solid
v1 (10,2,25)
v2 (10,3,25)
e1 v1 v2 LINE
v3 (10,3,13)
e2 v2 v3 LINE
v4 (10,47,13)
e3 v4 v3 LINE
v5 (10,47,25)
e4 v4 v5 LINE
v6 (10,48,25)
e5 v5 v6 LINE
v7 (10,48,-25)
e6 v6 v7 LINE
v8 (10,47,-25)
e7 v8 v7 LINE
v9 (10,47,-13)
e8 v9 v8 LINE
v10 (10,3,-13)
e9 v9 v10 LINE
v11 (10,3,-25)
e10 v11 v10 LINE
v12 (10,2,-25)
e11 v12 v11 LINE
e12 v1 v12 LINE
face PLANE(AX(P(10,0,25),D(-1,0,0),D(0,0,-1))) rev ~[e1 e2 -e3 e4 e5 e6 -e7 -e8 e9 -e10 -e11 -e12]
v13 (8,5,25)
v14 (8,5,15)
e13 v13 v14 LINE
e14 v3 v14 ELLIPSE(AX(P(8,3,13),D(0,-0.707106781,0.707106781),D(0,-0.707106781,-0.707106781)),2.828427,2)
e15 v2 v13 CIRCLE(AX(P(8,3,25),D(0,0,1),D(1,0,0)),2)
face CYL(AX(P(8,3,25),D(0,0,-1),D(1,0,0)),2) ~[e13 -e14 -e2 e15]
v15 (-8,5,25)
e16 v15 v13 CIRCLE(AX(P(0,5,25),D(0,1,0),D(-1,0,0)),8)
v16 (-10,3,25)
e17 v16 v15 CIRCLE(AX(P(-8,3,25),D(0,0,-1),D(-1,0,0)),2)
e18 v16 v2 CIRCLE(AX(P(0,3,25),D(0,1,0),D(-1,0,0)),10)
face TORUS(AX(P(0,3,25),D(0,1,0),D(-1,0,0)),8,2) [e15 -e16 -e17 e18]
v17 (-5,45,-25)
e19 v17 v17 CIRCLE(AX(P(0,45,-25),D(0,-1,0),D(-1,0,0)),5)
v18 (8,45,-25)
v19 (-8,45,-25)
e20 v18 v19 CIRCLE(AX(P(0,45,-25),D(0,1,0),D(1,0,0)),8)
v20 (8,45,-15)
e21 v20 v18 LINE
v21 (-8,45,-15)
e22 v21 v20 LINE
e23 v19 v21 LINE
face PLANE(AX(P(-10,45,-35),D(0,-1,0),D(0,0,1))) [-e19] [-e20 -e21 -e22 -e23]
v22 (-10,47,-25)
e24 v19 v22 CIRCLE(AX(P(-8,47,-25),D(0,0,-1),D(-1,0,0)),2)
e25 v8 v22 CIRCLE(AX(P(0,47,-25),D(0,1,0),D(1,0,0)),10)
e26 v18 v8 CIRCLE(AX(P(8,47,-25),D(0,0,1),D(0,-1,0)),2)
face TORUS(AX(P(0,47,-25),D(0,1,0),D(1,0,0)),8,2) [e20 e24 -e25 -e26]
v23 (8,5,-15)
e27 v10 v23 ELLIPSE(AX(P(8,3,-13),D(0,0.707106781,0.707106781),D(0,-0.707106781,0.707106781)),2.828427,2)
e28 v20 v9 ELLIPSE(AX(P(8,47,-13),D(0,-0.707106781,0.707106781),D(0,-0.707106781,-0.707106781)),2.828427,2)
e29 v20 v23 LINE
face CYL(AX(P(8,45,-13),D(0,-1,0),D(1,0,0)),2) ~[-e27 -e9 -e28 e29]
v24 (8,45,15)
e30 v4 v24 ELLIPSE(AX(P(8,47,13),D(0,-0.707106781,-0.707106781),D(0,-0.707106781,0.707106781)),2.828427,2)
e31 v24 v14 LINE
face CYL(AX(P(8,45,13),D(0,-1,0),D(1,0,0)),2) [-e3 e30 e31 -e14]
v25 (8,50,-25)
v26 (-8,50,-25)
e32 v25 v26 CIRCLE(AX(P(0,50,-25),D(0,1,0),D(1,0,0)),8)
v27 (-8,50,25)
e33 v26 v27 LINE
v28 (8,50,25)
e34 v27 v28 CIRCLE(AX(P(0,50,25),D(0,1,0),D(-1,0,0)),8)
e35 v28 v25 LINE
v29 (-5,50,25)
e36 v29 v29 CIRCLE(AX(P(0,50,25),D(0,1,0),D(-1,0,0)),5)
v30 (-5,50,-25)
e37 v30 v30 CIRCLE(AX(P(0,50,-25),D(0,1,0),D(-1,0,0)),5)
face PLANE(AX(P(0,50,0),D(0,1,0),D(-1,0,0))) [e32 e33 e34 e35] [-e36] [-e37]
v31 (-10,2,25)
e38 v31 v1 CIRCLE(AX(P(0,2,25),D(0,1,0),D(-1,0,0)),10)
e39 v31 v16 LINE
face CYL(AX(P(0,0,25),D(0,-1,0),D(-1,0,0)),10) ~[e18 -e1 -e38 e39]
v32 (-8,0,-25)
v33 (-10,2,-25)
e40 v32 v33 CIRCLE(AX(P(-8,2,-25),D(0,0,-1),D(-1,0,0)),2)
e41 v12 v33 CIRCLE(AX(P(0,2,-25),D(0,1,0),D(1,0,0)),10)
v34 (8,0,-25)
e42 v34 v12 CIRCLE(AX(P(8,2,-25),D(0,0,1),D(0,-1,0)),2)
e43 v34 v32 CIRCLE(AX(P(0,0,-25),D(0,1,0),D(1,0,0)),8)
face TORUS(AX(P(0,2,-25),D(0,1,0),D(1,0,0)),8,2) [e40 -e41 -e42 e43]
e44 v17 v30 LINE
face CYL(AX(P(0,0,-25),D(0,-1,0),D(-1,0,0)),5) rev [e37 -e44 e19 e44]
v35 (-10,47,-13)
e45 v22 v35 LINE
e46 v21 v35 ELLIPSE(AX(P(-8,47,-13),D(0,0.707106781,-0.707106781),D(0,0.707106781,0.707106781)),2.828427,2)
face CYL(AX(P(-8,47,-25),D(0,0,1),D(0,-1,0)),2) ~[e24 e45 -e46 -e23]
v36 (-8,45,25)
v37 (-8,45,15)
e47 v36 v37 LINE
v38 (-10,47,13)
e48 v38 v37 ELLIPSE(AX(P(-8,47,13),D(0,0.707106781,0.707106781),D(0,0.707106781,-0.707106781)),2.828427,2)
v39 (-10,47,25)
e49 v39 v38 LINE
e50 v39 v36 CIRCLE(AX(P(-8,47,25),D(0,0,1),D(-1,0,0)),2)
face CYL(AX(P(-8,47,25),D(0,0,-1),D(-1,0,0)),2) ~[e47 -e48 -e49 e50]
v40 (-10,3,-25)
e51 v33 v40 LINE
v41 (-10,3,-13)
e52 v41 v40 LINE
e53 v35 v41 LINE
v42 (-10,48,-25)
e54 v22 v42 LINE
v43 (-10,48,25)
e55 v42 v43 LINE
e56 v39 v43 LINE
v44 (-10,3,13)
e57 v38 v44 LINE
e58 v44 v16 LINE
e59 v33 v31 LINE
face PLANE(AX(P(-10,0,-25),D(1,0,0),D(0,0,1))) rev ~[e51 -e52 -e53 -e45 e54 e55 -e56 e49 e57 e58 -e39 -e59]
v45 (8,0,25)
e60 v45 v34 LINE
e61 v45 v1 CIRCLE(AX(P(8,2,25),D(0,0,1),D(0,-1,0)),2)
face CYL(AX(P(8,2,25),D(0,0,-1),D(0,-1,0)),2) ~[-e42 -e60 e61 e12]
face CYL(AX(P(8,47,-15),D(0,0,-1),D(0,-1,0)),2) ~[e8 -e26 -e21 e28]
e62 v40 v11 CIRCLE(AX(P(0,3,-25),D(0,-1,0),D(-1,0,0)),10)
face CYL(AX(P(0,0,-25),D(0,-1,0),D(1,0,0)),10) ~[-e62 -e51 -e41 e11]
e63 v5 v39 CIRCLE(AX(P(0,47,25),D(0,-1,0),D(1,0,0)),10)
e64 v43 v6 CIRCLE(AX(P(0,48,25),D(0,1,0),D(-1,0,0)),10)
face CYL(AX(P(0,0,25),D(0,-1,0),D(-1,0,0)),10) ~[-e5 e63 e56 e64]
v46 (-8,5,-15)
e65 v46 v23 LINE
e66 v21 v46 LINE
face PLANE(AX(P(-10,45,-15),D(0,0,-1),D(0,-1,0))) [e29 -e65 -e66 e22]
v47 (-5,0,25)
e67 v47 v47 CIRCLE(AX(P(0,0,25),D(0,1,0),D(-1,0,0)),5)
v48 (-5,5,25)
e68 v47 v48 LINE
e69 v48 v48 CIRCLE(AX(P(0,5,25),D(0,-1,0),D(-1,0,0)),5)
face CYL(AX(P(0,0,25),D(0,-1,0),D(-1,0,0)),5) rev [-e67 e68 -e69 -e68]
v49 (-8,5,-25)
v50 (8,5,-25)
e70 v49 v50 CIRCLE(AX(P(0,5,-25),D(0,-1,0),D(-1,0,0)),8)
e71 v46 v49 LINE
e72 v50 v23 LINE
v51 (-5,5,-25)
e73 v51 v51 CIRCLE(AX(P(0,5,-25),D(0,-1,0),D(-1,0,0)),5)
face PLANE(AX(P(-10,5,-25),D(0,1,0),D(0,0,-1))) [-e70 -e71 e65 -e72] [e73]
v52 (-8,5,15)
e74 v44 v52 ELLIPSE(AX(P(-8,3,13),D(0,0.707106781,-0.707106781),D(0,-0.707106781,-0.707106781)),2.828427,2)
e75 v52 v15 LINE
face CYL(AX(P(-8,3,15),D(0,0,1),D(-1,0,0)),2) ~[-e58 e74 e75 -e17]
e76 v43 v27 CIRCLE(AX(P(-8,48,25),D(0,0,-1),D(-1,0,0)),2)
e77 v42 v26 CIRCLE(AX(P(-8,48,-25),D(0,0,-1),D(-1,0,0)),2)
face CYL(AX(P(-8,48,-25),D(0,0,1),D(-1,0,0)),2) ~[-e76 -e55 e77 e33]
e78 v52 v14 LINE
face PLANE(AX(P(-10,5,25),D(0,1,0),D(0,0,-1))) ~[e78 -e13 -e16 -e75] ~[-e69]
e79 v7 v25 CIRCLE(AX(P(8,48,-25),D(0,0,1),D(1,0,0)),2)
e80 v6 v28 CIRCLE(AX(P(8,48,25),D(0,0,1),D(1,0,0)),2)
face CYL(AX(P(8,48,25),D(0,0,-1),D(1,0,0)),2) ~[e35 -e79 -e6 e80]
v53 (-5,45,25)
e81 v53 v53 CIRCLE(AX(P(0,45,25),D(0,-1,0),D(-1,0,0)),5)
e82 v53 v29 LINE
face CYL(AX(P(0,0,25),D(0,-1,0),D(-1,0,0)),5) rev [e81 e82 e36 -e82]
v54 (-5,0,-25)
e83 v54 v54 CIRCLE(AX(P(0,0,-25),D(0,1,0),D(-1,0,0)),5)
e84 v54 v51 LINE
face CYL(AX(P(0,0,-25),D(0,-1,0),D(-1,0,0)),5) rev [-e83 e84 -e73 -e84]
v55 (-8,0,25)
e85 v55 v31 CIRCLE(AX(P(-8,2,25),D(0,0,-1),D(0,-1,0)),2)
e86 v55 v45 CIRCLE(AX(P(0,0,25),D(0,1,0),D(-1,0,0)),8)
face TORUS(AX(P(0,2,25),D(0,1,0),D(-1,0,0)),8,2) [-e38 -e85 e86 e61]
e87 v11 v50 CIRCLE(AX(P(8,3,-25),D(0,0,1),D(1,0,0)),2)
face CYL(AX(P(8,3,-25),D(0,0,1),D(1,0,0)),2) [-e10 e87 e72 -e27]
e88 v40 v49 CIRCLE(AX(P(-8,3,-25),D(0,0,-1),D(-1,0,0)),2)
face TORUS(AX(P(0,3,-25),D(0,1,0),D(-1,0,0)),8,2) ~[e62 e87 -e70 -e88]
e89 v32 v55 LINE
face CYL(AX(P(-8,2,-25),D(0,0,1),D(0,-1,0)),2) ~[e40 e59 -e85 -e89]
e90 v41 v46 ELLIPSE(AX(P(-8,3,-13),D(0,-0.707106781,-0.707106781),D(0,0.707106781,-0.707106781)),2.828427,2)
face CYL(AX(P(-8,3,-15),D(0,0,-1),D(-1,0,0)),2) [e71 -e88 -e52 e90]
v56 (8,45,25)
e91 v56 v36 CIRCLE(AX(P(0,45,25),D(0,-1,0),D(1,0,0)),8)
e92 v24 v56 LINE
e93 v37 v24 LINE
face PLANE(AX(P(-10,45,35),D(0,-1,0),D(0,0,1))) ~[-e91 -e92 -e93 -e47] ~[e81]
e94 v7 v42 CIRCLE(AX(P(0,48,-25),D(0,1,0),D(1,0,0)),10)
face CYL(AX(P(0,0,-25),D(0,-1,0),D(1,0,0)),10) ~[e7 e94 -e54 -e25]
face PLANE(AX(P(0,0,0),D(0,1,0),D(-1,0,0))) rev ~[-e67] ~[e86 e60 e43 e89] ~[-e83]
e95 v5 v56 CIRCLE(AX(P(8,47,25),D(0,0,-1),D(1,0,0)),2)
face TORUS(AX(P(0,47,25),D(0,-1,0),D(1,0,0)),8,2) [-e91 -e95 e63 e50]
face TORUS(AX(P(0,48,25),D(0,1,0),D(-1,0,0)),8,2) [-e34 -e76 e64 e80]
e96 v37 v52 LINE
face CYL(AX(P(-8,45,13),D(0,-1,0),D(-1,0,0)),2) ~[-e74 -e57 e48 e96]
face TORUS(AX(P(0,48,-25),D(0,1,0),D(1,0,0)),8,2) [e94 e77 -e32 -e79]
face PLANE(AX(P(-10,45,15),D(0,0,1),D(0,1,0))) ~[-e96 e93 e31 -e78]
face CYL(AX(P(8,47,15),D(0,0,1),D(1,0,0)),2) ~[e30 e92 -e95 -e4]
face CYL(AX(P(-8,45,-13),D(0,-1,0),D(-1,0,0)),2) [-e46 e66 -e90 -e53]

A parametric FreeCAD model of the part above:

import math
import FreeCAD as App
import Part
import Sketcher

V = App.Vector
Q = App.Units.Quantity


def edges_at(feature, points):
    """Names of the edges that pass closest to the given points."""
    edges = feature.Shape.Edges
    near = lambda p: min(range(len(edges)), key=lambda i: edges[i].distToShape(Part.Vertex(*p))[0])
    return sorted({f"Edge{near(p) + 1}" for p in points})


def add_polygon(sketch, points):
    """Adds a closed chain of lines whose ends are joined by coincident constraints."""
    first, n = sketch.GeometryCount, len(points)
    for a, b in zip(points, points[1:] + points[:1]):
        sketch.addGeometry(Part.LineSegment(App.Vector(*a, 0), App.Vector(*b, 0)), False)
    for i in range(n):
        sketch.addConstraint(Sketcher.Constraint("Coincident", first + i, 2, first + (i + 1) % n, 1))

doc = App.newDocument("Part")
body = doc.addObject("PartDesign::Body", "Body")

# Sketch on XZ plane
sketch1 = body.newObject("Sketcher::SketchObject", "Sketch")
sketch1.AttachmentSupport = (doc.getObject("XZ_Plane"), [""])
sketch1.MapMode = "FlatFace"
sketch1.addGeometry(Part.ArcOfCircle(Part.Circle(V(0, -25, 0), V(0, 0, 1), 10), math.radians(180), math.radians(360)), False)
sketch1.addGeometry(Part.LineSegment(V(-10, -25, 0), V(-10, 25, 0)), False)
sketch1.addGeometry(Part.ArcOfCircle(Part.Circle(V(0, 25, 0), V(0, 0, 1), 10), math.radians(0), math.radians(180)), False)
sketch1.addGeometry(Part.LineSegment(V(10, 25, 0), V(10, -25, 0)), False)
sketch1.addGeometry(Part.Circle(V(0, -25, 0), V(0, 0, 1), 5), False)
sketch1.addGeometry(Part.Circle(V(0, 25, 0), V(0, 0, 1), 5), False)
sketch1.addConstraint(Sketcher.Constraint("Tangent", 0, 1, 1, 1))
sketch1.addConstraint(Sketcher.Constraint("Tangent", 1, 2, 2, 2))
sketch1.addConstraint(Sketcher.Constraint("Tangent", 2, 1, 3, 1))
sketch1.addConstraint(Sketcher.Constraint("Tangent", 3, 2, 0, 2))
sketch1.addConstraint(Sketcher.Constraint("Vertical", 1))
sketch1.addConstraint(Sketcher.Constraint("Vertical", 3))
sketch1.addConstraint(Sketcher.Constraint("Coincident", 4, 3, 0, 3))
sketch1.addConstraint(Sketcher.Constraint("Coincident", 5, 3, 2, 3))
sketch1.addConstraint(Sketcher.Constraint("Equal", 4, 5))
sketch1.addConstraint(Sketcher.Constraint("Symmetric", 0, 3, 2, 3, -1, 1))
sketch1.addConstraint(Sketcher.Constraint("Diameter", 4, Q("10 mm")))
sketch1.addConstraint(Sketcher.Constraint("Radius", 0, Q("10 mm")))
sketch1.addConstraint(Sketcher.Constraint("DistanceY", 1, 1, 1, 2, Q("50 mm")))
pad1 = body.newObject("PartDesign::Pad", "Pad")
pad1.Profile = sketch1
pad1.Length = 50
pad1.Reversed = True

# Sketch on YZ plane
sketch2 = body.newObject("Sketcher::SketchObject", "Sketch001")
sketch2.AttachmentSupport = (doc.getObject("YZ_Plane"), [""])
sketch2.MapMode = "FlatFace"
sketch2.AttachmentOffset = App.Placement(V(0, 0, -10), App.Rotation())
add_polygon(sketch2, [(45, -35), (5, -35), (5, -15), (45, -15)])  # lines 0-3
sketch2.addConstraint(Sketcher.Constraint("Horizontal", 0))
sketch2.addConstraint(Sketcher.Constraint("Vertical", 1))
sketch2.addConstraint(Sketcher.Constraint("Horizontal", 2))
sketch2.addConstraint(Sketcher.Constraint("Vertical", 3))
sketch2.addConstraint(Sketcher.Constraint("DistanceX", 0, 2, 0, 1, Q("40 mm")))
sketch2.addConstraint(Sketcher.Constraint("DistanceY", 1, 1, 1, 2, Q("20 mm")))
sketch2.addConstraint(Sketcher.Constraint("DistanceX", -1, 1, 0, 2, Q("5 mm")))
sketch2.addConstraint(Sketcher.Constraint("DistanceY", 0, 2, -1, 1, Q("35 mm")))
pocket1 = body.newObject("PartDesign::Pocket", "Pocket")
pocket1.Profile = sketch2
pocket1.Length = 20
pocket1.Reversed = True
doc.recompute()

mirrored = body.newObject("PartDesign::Mirrored", "Mirrored")
mirrored.Originals = [pocket1]
mirrored.MirrorPlane = (doc.getObject("XY_Plane"), [""])
body.Tip = mirrored
doc.recompute()

fillet = body.newObject("PartDesign::Fillet", "Fillet")
fillet.Base = (mirrored, edges_at(mirrored, [
    (0, 50, -35),
    (-10, 50, 0),
    (0, 50, 35),
    (10, 50, 0),
    (0, 45, -35),
    (-10, 45, -20),
    (10, 45, -20),
    (10, 25, -15),
    (10, 25, 15),
    (10, 45, 20),
    (-10, 45, 20),
    (0, 45, 35),
    (-10, 25, 15),
    (-10, 5, 20),
    (10, 5, 20),
    (0, 5, 35),
    (10, 0, 0),
    (0, 0, -35),
    (-10, 0, 0),
    (0, 0, 35),
    (10, 5, -20),
    (-10, 5, -20),
    (0, 5, -35),
    (-10, 25, -15),
]))
fillet.Radius = 2

doc.recompute()
